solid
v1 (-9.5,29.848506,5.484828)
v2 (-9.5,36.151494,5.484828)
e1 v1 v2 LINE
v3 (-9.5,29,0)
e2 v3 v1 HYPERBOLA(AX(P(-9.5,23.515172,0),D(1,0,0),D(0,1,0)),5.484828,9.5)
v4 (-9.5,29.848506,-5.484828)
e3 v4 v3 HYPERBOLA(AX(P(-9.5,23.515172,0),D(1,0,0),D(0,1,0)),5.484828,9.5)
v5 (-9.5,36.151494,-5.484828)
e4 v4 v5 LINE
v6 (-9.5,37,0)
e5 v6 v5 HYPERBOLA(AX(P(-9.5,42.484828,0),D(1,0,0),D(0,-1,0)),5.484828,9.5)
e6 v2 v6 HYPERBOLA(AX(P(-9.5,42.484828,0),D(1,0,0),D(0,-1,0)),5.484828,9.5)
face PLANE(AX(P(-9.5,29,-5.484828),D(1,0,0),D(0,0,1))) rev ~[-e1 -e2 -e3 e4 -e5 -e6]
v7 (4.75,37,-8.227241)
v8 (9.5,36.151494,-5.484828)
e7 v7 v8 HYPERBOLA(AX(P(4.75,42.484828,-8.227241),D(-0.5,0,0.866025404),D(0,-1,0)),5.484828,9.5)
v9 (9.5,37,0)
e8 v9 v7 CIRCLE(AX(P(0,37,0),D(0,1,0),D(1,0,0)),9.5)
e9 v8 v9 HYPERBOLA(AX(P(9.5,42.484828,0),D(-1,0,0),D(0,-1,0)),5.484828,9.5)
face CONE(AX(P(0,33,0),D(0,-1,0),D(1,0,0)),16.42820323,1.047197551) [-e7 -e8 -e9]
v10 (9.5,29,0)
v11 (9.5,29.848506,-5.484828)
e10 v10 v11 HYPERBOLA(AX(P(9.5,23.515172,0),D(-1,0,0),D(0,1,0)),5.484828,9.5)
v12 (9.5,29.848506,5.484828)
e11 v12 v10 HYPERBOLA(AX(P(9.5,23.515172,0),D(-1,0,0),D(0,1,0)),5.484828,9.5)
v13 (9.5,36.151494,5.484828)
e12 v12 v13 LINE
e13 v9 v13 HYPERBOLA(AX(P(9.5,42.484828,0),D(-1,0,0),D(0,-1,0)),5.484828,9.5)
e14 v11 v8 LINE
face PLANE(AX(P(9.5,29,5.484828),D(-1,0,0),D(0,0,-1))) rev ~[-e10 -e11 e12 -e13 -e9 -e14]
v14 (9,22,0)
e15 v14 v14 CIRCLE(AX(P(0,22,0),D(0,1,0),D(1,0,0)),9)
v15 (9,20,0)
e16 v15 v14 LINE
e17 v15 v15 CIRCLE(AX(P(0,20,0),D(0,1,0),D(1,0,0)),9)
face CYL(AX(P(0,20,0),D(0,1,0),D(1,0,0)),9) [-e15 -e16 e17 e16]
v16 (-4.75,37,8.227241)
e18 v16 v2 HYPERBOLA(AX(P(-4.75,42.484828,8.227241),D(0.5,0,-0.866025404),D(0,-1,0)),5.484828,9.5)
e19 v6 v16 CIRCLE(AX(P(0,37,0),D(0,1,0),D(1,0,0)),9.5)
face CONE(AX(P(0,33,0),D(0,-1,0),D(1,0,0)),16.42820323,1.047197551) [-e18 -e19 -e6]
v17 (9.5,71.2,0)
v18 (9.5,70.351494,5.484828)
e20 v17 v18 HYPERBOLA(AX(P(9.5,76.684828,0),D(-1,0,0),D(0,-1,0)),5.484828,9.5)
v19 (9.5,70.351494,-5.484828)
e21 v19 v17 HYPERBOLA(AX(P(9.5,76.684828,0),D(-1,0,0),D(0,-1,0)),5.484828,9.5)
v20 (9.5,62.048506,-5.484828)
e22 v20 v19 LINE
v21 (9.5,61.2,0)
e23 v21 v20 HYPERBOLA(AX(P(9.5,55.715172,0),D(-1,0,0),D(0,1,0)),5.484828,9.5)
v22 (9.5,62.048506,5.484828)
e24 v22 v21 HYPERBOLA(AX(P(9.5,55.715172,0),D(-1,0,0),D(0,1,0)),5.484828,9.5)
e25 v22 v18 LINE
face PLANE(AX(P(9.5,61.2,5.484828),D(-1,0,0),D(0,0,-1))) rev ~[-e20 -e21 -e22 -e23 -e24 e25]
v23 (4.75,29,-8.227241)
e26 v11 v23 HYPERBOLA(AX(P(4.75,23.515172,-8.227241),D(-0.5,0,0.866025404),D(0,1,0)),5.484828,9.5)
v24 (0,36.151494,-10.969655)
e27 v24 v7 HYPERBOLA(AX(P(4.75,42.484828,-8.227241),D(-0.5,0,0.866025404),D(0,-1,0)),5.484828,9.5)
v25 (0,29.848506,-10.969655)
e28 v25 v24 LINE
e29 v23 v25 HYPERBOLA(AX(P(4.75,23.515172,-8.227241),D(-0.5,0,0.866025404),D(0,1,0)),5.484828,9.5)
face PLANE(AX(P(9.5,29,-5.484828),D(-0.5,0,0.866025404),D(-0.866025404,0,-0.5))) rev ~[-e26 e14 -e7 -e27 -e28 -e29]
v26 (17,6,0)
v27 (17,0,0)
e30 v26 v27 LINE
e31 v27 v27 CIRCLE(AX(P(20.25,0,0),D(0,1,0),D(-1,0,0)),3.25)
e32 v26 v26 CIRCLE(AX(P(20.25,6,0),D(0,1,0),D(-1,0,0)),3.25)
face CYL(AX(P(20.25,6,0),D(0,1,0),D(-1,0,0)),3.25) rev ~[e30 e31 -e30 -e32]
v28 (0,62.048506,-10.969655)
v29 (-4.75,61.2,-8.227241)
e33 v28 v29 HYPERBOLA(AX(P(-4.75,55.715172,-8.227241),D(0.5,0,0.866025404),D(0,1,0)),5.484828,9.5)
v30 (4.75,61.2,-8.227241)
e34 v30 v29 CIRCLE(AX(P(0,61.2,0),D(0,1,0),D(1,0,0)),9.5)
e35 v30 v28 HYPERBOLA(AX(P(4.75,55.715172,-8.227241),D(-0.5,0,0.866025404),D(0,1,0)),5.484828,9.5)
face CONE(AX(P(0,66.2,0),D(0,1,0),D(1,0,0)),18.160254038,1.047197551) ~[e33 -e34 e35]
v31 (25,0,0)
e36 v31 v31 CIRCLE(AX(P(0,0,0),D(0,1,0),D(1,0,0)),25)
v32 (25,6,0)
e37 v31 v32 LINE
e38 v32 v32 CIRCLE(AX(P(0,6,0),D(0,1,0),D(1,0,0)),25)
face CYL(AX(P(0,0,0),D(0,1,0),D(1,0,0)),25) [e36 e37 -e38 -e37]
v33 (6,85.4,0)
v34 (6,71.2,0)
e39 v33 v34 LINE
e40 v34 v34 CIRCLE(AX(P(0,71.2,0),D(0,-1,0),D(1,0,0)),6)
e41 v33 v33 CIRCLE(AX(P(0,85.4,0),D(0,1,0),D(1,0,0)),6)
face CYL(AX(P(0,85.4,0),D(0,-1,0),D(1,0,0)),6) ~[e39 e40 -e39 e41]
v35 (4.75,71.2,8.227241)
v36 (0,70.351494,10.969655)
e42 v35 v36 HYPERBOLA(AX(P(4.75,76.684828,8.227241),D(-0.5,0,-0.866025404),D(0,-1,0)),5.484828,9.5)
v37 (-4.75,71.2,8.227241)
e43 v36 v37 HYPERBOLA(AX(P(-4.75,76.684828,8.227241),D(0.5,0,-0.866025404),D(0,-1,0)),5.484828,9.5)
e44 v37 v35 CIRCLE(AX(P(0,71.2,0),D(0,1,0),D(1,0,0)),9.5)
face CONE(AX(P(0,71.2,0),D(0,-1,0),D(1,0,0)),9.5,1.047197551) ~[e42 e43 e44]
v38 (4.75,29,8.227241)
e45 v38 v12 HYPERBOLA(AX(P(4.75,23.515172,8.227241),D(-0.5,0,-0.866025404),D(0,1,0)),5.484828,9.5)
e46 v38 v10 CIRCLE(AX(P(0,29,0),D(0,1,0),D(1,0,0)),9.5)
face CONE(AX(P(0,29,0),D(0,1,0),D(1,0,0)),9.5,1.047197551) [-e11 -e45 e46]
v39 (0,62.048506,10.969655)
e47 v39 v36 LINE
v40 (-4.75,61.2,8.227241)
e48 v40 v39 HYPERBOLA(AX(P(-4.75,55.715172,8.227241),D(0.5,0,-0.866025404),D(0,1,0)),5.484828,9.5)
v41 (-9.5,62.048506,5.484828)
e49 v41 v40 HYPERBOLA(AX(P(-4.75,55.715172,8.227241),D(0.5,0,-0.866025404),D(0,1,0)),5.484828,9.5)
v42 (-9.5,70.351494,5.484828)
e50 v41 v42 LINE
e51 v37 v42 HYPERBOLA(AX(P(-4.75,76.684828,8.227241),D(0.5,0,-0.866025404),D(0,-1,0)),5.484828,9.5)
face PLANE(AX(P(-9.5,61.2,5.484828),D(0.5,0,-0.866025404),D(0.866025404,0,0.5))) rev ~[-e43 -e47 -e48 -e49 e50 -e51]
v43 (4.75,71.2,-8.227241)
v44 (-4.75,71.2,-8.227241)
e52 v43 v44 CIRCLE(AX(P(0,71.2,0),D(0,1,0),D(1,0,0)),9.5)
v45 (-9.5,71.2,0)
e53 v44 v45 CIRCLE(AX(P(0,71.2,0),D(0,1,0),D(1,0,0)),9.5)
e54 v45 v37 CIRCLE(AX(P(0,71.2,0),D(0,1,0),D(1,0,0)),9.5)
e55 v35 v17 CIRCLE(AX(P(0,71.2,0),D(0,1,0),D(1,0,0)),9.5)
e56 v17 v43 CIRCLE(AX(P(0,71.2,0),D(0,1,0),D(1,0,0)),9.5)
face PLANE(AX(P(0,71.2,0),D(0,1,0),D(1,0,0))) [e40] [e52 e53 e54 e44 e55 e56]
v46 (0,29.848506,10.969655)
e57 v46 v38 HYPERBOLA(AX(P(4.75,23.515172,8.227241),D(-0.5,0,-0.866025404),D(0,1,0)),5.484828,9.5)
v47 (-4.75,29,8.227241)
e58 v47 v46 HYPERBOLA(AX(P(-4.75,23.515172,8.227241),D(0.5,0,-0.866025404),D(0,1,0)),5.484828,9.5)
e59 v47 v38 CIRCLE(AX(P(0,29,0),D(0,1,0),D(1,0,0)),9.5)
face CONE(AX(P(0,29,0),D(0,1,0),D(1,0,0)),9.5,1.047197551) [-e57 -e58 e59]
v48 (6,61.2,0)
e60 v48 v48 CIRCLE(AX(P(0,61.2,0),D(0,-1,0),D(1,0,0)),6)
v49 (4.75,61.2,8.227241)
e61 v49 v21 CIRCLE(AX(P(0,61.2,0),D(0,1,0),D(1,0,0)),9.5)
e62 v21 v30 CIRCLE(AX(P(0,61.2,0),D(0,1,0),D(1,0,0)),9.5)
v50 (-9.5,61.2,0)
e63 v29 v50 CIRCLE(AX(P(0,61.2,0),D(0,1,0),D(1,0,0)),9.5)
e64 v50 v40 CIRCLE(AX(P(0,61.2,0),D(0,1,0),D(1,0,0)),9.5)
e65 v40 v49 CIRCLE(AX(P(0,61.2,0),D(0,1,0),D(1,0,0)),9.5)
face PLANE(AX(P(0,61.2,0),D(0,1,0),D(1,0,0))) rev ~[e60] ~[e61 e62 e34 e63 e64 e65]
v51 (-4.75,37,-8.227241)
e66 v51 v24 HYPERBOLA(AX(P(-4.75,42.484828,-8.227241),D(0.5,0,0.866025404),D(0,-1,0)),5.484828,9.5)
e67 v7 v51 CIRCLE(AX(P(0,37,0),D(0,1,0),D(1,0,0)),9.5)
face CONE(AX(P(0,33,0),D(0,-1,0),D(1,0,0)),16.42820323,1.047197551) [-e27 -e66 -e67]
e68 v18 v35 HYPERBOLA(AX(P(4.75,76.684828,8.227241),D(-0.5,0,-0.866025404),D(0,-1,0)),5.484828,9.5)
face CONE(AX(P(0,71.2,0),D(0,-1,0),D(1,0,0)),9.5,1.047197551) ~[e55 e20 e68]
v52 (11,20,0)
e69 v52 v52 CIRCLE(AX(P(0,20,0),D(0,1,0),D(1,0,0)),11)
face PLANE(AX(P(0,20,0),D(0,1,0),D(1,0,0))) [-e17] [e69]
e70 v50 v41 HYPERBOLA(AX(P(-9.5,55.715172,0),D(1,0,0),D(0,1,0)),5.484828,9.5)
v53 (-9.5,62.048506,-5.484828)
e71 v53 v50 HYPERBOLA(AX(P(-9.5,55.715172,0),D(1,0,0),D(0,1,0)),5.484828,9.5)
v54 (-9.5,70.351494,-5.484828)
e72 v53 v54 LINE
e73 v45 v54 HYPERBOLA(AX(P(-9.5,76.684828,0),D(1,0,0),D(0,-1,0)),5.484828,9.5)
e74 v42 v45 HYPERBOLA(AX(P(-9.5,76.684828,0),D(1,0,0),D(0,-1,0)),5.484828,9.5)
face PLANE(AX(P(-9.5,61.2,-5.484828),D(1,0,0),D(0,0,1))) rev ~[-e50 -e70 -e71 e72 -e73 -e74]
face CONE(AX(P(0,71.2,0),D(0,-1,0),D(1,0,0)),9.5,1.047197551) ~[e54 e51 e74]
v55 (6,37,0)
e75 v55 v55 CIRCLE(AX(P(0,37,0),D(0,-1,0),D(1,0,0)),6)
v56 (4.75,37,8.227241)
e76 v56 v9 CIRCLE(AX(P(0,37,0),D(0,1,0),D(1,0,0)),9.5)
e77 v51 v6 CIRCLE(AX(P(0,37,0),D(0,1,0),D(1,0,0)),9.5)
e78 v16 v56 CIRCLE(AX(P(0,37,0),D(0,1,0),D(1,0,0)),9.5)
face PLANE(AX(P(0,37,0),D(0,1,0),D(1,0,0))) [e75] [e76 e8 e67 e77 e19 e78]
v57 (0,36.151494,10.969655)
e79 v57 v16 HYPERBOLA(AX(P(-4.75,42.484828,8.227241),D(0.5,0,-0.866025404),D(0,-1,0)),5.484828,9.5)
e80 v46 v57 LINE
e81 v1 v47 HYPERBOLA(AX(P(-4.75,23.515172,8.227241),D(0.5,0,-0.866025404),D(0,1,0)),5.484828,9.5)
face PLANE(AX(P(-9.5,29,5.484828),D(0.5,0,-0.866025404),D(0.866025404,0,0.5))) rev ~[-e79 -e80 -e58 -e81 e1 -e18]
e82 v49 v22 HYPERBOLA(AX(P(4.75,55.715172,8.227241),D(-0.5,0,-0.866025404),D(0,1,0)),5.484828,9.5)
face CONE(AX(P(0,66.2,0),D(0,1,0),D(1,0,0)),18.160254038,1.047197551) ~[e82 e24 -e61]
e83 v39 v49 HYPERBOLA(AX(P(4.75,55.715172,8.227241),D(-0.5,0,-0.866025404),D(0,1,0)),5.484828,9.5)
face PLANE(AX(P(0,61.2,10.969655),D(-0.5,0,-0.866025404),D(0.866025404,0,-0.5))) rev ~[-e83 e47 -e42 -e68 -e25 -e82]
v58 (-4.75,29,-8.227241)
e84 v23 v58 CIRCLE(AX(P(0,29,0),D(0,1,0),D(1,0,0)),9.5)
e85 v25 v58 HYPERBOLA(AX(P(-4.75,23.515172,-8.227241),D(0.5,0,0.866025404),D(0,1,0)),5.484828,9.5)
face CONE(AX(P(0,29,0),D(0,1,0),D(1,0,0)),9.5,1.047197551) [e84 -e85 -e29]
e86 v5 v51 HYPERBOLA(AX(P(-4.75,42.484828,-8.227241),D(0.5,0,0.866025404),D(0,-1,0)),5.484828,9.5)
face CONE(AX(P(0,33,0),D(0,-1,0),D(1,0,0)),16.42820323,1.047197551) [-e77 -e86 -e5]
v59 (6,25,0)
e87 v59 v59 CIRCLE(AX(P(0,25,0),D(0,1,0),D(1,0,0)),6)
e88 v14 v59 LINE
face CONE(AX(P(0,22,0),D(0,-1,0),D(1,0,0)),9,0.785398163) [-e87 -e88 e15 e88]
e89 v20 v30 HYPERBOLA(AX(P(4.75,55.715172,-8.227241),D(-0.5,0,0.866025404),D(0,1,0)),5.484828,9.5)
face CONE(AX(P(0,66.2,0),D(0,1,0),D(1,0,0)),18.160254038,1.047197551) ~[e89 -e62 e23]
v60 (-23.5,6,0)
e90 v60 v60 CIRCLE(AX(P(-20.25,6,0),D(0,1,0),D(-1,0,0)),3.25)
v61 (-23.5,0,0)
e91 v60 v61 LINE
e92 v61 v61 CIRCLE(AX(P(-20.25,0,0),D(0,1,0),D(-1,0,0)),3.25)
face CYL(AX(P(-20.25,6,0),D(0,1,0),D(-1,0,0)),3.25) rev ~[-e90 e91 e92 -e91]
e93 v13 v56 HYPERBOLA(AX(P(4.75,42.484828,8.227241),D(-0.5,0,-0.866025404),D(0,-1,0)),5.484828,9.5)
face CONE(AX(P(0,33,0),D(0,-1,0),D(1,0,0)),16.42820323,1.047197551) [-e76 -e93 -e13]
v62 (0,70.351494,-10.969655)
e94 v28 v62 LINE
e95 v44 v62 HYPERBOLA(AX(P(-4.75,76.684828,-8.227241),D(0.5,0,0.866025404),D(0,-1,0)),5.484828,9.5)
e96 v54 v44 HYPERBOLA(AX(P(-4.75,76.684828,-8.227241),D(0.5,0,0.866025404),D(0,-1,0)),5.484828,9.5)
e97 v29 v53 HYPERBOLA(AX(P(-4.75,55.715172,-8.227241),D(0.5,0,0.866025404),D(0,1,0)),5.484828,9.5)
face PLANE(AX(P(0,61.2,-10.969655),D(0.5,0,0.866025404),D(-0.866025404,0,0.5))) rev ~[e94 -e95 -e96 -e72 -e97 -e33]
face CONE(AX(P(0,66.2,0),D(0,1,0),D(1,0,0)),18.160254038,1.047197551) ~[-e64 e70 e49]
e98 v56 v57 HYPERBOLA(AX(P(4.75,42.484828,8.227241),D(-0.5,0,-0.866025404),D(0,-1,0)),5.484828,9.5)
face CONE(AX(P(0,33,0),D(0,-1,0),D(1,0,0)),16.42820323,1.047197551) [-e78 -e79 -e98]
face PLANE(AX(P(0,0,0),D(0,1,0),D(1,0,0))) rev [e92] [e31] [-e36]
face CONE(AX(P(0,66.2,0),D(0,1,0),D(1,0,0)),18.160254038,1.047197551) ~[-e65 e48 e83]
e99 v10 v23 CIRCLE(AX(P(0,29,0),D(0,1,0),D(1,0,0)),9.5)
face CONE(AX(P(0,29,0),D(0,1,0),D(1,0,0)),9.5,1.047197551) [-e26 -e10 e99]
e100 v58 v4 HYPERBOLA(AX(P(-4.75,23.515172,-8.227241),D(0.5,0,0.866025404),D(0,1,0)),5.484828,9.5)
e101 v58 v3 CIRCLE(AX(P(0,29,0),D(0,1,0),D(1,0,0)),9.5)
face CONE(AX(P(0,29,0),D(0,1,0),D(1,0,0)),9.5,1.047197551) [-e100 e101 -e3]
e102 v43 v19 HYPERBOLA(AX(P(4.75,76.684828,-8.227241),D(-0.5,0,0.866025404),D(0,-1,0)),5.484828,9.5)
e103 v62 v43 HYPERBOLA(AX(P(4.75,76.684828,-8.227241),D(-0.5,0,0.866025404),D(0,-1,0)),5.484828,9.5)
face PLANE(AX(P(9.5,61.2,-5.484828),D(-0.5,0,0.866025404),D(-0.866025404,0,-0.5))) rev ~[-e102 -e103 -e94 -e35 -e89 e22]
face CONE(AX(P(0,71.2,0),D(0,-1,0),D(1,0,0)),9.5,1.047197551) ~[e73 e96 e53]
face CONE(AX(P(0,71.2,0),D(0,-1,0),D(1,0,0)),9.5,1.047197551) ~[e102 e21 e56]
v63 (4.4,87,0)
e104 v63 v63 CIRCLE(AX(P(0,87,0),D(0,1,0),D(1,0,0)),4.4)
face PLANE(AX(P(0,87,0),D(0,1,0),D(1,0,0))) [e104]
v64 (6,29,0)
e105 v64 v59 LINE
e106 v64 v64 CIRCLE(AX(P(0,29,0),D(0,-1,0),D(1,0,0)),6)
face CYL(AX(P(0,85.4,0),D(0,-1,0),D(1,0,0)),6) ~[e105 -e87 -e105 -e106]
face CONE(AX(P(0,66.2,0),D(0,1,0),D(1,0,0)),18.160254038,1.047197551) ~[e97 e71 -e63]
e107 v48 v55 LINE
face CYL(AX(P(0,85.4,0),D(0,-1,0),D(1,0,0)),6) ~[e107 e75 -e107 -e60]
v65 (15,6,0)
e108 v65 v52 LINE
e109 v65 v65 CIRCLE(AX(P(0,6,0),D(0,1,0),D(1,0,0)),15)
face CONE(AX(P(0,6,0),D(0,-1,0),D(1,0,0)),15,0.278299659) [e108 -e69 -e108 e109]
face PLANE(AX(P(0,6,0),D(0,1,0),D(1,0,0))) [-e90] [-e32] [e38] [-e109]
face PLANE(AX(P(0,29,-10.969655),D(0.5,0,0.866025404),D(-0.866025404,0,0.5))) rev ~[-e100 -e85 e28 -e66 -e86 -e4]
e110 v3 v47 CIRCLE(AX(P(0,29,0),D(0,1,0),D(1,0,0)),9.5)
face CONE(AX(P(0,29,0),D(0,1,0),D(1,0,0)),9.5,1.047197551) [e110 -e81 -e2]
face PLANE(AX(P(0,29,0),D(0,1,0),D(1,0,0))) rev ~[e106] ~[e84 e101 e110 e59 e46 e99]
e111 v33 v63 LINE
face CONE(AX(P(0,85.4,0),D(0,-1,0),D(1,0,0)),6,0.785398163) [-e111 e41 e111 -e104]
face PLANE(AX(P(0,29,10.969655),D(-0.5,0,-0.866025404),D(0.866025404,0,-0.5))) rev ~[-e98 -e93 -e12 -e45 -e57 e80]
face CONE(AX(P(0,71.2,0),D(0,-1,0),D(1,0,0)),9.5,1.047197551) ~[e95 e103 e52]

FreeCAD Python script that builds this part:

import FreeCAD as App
import Part
import Sketcher
Q = App.Units.Quantity


def add_polygon(sketch, points):
    """Adds a closed chain of lines whose ends are joined by coincident constraints."""
    first, n = sketch.GeometryCount, len(points)
    for a, b in zip(points, points[1:] + points[:1]):
        sketch.addGeometry(Part.LineSegment(App.Vector(*a, 0), App.Vector(*b, 0)), False)
    for i in range(n):
        sketch.addConstraint(Sketcher.Constraint("Coincident", first + i, 2, first + (i + 1) % n, 1))

doc = App.newDocument("Part")
body = doc.addObject("PartDesign::Body", "Body")

sketch1 = doc.addObject("Sketcher::SketchObject", "Sketch")
body.addObject(sketch1)
sketch1.AttachmentSupport = (doc.XY_Plane, [""])
sketch1.MapMode = "FlatFace"
add_polygon(sketch1, [(-25, 0), (0, 0), (0, 87), (-4.4, 87), (-6, 85.4), (-6, 25), (-9, 22), (-9, 20), (-11, 20), (-15, 6), (-25, 6)])
sketch1.addConstraint(Sketcher.Constraint("Horizontal", 0))
sketch1.addConstraint(Sketcher.Constraint("Vertical", 1))
sketch1.addConstraint(Sketcher.Constraint("Horizontal", 2))
sketch1.addConstraint(Sketcher.Constraint("Vertical", 4))
sketch1.addConstraint(Sketcher.Constraint("Vertical", 6))
sketch1.addConstraint(Sketcher.Constraint("Horizontal", 7))
sketch1.addConstraint(Sketcher.Constraint("Horizontal", 9))
sketch1.addConstraint(Sketcher.Constraint("Vertical", 10))
sketch1.addConstraint(Sketcher.Constraint("Coincident", 0, 2, -1, 1))
sketch1.addConstraint(Sketcher.Constraint("Parallel", 3, 5))
sketch1.addConstraint(Sketcher.Constraint("Equal", 7, 6))
sketch1.addConstraint(Sketcher.Constraint("DistanceX", 0, 1, 0, 2, Q("25 mm")))
sketch1.addConstraint(Sketcher.Constraint("DistanceX", 7, 2, 7, 1, Q("2 mm")))
sketch1.addConstraint(Sketcher.Constraint("DistanceX", 9, 2, 9, 1, Q("10 mm")))
sketch1.addConstraint(Sketcher.Constraint("DistanceY", 1, 1, 1, 2, Q("87 mm")))
sketch1.addConstraint(Sketcher.Constraint("DistanceY", 10, 2, 10, 1, Q("6 mm")))
sketch1.addConstraint(Sketcher.Constraint("Angle", 3, Q("-135 deg")))
sketch1.addConstraint(Sketcher.Constraint("DistanceX", 2, 2, 2, 1, Q("4.4 mm")))
sketch1.addConstraint(Sketcher.Constraint("DistanceY", 4, 2, 4, 1, Q("60.4 mm")))
sketch1.addConstraint(Sketcher.Constraint("DistanceX", 3, 2, -1, 1, Q("6 mm")))
sketch1.addConstraint(Sketcher.Constraint("DistanceX", 5, 2, -1, 1, Q("9 mm")))
revolution = doc.addObject("PartDesign::Revolution", "Revolution")
body.addObject(revolution)
revolution.Profile = sketch1
revolution.ReferenceAxis = (sketch1, ["V_Axis"])
revolution.Angle = 360

sketch2 = doc.addObject("Sketcher::SketchObject", "Sketch001")
body.addObject(sketch2)
sketch2.AttachmentSupport = (doc.XZ_Plane, [""])
sketch2.MapMode = "FlatFace"
sketch2.AttachmentOffset = App.Placement(App.Vector(0, 0, -29), App.Rotation())
add_polygon(sketch2, [(0, -11), (-10, -5), (-10, 5), (0, 11), (10, 5), (10, -5)])
sketch2.addConstraint(Sketcher.Constraint("Vertical", 1))
sketch2.addConstraint(Sketcher.Constraint("Vertical", 4))
sketch2.addConstraint(Sketcher.Constraint("Symmetric", 0, 2, 3, 2, -1, 1))
sketch2.addConstraint(Sketcher.Constraint("Symmetric", 2, 2, 5, 2, -1, 1))
sketch2.addConstraint(Sketcher.Constraint("PointOnObject", 2, 2, -2))
sketch2.addConstraint(Sketcher.Constraint("Parallel", 2, 5))
sketch2.addConstraint(Sketcher.Constraint("Horizontal", 1, 2, 3, 2))
sketch2.addConstraint(Sketcher.Constraint("Angle", 0, Q("150 deg")))
sketch2.addConstraint(Sketcher.Constraint("DistanceX", 1, 2, 3, 2, Q("19 mm")))
sketch2.addConstraint(Sketcher.Constraint("DistanceY", 1, 1, 1, 2, Q("10.969655 mm")))
pad1 = doc.addObject("PartDesign::Pad", "Pad")
body.addObject(pad1)
pad1.Profile = sketch2
pad1.Length = 8
pad1.Reversed = True

sketch3 = doc.addObject("Sketcher::SketchObject", "Sketch002")
body.addObject(sketch3)
sketch3.AttachmentSupport = (doc.XZ_Plane, [""])
sketch3.MapMode = "FlatFace"
sketch3.AttachmentOffset = App.Placement(App.Vector(0, 0, -61.2), App.Rotation())
add_polygon(sketch3, [(10, -5), (0, -11), (-10, -5), (-10, 5), (0, 11), (10, 5)])
sketch3.addConstraint(Sketcher.Constraint("Vertical", 2))
sketch3.addConstraint(Sketcher.Constraint("Vertical", 5))
sketch3.addConstraint(Sketcher.Constraint("Symmetric", 0, 2, 3, 2, -1, 1))
sketch3.addConstraint(Sketcher.Constraint("Symmetric", 1, 2, 4, 2, -1, 1))
sketch3.addConstraint(Sketcher.Constraint("PointOnObject", 0, 2, -2))
sketch3.addConstraint(Sketcher.Constraint("Parallel", 0, 3))
sketch3.addConstraint(Sketcher.Constraint("Horizontal", 2, 2, 4, 2))
sketch3.addConstraint(Sketcher.Constraint("Angle", 0, Q("-150 deg")))
sketch3.addConstraint(Sketcher.Constraint("DistanceX", 2, 2, 4, 2, Q("19 mm")))
sketch3.addConstraint(Sketcher.Constraint("DistanceY", 2, 1, 2, 2, Q("10.969655 mm")))
pad2 = doc.addObject("PartDesign::Pad", "Pad001")
body.addObject(pad2)
pad2.Profile = sketch3
pad2.Length = 10
pad2.Reversed = True

sketch4 = doc.addObject("Sketcher::SketchObject", "Sketch003")
body.addObject(sketch4)
sketch4.AttachmentSupport = (doc.XY_Plane, [""])
sketch4.MapMode = "FlatFace"
add_polygon(sketch4, [(-9.5, 71.2), (-18.2, 71.2), (-18.2, 66.2)])
add_polygon(sketch4, [(-18.2, 66.2), (-18.2, 61.2), (-9.5, 61.2)])
add_polygon(sketch4, [(-16.4, 37), (-16.4, 33), (-9.5, 37)])
add_polygon(sketch4, [(-16.4, 33), (-16.4, 29), (-9.5, 29)])
sketch4.addConstraint(Sketcher.Constraint("Horizontal", 0))
sketch4.addConstraint(Sketcher.Constraint("Vertical", 1))
sketch4.addConstraint(Sketcher.Constraint("Vertical", 3))
sketch4.addConstraint(Sketcher.Constraint("Horizontal", 4))
sketch4.addConstraint(Sketcher.Constraint("Vertical", 6))
sketch4.addConstraint(Sketcher.Constraint("Horizontal", 8))
sketch4.addConstraint(Sketcher.Constraint("Vertical", 9))
sketch4.addConstraint(Sketcher.Constraint("Horizontal", 10))
sketch4.addConstraint(Sketcher.Constraint("Coincident", 5, 2, 1, 2))
sketch4.addConstraint(Sketcher.Constraint("Coincident", 11, 2, 6, 2))
sketch4.addConstraint(Sketcher.Constraint("Parallel", 2, 7))
sketch4.addConstraint(Sketcher.Constraint("Parallel", 5, 11))
sketch4.addConstraint(Sketcher.Constraint("Vertical", 2, 2, 4, 2))
sketch4.addConstraint(Sketcher.Constraint("Vertical", 4, 2, 7, 2))
sketch4.addConstraint(Sketcher.Constraint("Vertical", 7, 2, 10, 2))
sketch4.addConstraint(Sketcher.Constraint("Equal", 1, 3))
sketch4.addConstraint(Sketcher.Constraint("DistanceY", 1, 2, 1, 1, Q("5 mm")))
sketch4.addConstraint(Sketcher.Constraint("DistanceY", 6, 2, 6, 1, Q("4 mm")))
sketch4.addConstraint(Sketcher.Constraint("Angle", 2, Q("30 deg")))
sketch4.addConstraint(Sketcher.Constraint("DistanceY", -1, 1, 6, 2, Q("33 mm")))
sketch4.addConstraint(Sketcher.Constraint("DistanceY", -1, 1, 0, 2, Q("71.2 mm")))
sketch4.addConstraint(Sketcher.Constraint("DistanceX", 2, 2, -1, 1, Q("9.5 mm")))
groove = doc.addObject("PartDesign::Groove", "Groove")
body.addObject(groove)
groove.Profile = sketch4
groove.ReferenceAxis = (sketch4, ["V_Axis"])
groove.Angle = 360

sketch5 = doc.addObject("Sketcher::SketchObject", "Sketch004")
body.addObject(sketch5)
sketch5.AttachmentSupport = (doc.XZ_Plane, [""])
sketch5.MapMode = "FlatFace"
sketch5.AttachmentOffset = App.Placement(App.Vector(0, 0, -6), App.Rotation())
sketch5.addGeometry(Part.Circle(App.Vector(-20.2, 0, 0), App.Vector(0, 0, 1), 3.2), False)
sketch5.addGeometry(Part.Circle(App.Vector(20.2, 0, 0), App.Vector(0, 0, 1), 3.2), False)
sketch5.addConstraint(Sketcher.Constraint("Equal", 0, 1))
sketch5.addConstraint(Sketcher.Constraint("Symmetric", 0, 3, 1, 3, -1, 1))
sketch5.addConstraint(Sketcher.Constraint("PointOnObject", 0, 3, -1))
sketch5.addConstraint(Sketcher.Constraint("Diameter", 0, Q("6.5 mm")))
sketch5.addConstraint(Sketcher.Constraint("DistanceX", 0, 3, 1, 3, Q("40.5 mm")))
pocket1 = doc.addObject("PartDesign::Pocket", "Pocket")
body.addObject(pocket1)
pocket1.Profile = sketch5
pocket1.Type = "ThroughAll"
pocket1.Reversed = True

doc.recompute()
